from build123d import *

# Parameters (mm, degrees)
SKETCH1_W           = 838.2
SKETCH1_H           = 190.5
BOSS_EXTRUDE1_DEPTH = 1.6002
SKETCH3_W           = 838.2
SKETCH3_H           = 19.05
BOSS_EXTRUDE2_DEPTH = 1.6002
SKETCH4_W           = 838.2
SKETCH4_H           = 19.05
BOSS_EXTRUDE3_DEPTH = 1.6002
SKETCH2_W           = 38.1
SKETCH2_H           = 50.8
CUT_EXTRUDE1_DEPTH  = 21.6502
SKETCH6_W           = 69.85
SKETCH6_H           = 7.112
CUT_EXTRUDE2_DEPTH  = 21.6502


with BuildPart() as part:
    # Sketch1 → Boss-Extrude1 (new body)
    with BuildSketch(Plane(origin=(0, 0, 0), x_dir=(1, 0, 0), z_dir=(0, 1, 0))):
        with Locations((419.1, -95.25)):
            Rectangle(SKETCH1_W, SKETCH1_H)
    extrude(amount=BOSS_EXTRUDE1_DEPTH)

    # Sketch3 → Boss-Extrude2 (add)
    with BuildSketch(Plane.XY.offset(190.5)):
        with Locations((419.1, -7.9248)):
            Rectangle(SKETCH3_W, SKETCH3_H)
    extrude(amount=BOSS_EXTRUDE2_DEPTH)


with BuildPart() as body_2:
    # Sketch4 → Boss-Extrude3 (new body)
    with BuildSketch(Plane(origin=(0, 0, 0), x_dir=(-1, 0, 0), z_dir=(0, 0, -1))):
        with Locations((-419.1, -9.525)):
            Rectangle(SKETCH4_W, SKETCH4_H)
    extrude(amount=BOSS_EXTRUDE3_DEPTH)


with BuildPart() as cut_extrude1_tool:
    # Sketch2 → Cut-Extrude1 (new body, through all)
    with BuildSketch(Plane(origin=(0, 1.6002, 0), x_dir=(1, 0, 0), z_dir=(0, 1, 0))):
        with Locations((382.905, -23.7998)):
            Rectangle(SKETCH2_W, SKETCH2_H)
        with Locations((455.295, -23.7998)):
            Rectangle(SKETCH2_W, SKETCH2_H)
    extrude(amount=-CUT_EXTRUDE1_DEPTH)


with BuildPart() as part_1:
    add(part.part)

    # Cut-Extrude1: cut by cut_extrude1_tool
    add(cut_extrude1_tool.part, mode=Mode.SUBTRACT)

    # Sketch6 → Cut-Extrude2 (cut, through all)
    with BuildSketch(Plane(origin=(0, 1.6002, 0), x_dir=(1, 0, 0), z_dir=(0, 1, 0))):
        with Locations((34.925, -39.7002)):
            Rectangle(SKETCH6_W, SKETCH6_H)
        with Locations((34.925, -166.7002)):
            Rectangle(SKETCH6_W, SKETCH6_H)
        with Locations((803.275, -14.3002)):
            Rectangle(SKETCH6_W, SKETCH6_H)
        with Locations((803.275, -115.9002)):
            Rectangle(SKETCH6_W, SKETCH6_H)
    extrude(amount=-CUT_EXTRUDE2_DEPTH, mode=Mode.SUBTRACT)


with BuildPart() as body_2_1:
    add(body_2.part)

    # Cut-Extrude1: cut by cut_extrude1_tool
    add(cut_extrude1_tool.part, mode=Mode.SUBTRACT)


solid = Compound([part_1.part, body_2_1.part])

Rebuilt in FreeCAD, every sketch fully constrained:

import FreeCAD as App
import Part
import Sketcher
Q = App.Units.Quantity

doc = App.newDocument("Part")
body = doc.addObject("PartDesign::Body", "Body")

# Sketch on XZ plane
sketch1 = body.newObject("Sketcher::SketchObject", "Sketch")
sketch1.AttachmentSupport = (doc.getObject("XZ_Plane"), [""])
sketch1.MapMode = "FlatFace"
sketch1.addGeometry([
    Part.LineSegment(App.Vector(0, 0, 0), App.Vector(0, 190, 0)),
    Part.LineSegment(App.Vector(0, 190, 0), App.Vector(838, 190, 0)),
    Part.LineSegment(App.Vector(838, 190, 0), App.Vector(838, 0, 0)),
    Part.LineSegment(App.Vector(838, 0, 0), App.Vector(0, 0, 0)),
], False)
sketch1.addConstraint([
    Sketcher.Constraint("Coincident", 0, 2, 1, 1),
    Sketcher.Constraint("Coincident", 1, 2, 2, 1),
    Sketcher.Constraint("Coincident", 2, 2, 3, 1),
    Sketcher.Constraint("Coincident", 3, 2, 0, 1),
    Sketcher.Constraint("Vertical", 0),
    Sketcher.Constraint("Horizontal", 1),
    Sketcher.Constraint("Vertical", 2),
    Sketcher.Constraint("Horizontal", 3),
    Sketcher.Constraint("Coincident", 3, 2, -1, 1),
    Sketcher.Constraint("DistanceX", 1, 1, 1, 2, Q("33 in")),
    Sketcher.Constraint("DistanceY", 0, 1, 0, 2, Q("7.5 in")),
])
pad1 = body.newObject("PartDesign::Pad", "Pad")
pad1.Profile = sketch1
pad1.Length = Q("0.063 in")
pad1.Reversed = True

# Sketch on XY plane
sketch2 = body.newObject("Sketcher::SketchObject", "Sketch001")
sketch2.AttachmentSupport = (doc.getObject("XY_Plane"), [""])
sketch2.MapMode = "FlatFace"
sketch2.AttachmentOffset = App.Placement(App.Vector(0, 0, 7.5 * 25.4), App.Rotation())
sketch2.addGeometry([
    Part.LineSegment(App.Vector(0, 2, 0), App.Vector(0, -17, 0)),
    Part.LineSegment(App.Vector(0, -17, 0), App.Vector(838, -17, 0)),
    Part.LineSegment(App.Vector(838, -17, 0), App.Vector(838, 2, 0)),
    Part.LineSegment(App.Vector(838, 2, 0), App.Vector(0, 2, 0)),
], False)
sketch2.addConstraint([
    Sketcher.Constraint("Coincident", 0, 2, 1, 1),
    Sketcher.Constraint("Coincident", 1, 2, 2, 1),
    Sketcher.Constraint("Coincident", 2, 2, 3, 1),
    Sketcher.Constraint("Coincident", 3, 2, 0, 1),
    Sketcher.Constraint("Vertical", 0),
    Sketcher.Constraint("Horizontal", 1),
    Sketcher.Constraint("Vertical", 2),
    Sketcher.Constraint("Horizontal", 3),
    Sketcher.Constraint("PointOnObject", 0, 2, -2),
    Sketcher.Constraint("DistanceX", 1, 1, 1, 2, Q("33 in")),
    Sketcher.Constraint("DistanceY", 0, 2, 0, 1, Q("0.75 in")),
    Sketcher.Constraint("DistanceY", 0, 2, -1, 1, Q("0.687 in")),
])
pad2 = body.newObject("PartDesign::Pad", "Pad001")
pad2.Profile = sketch2
pad2.Length = Q("0.063 in")
body2 = doc.addObject("PartDesign::Body", "Body001")

# Sketch on XY plane
sketch3 = body2.newObject("Sketcher::SketchObject", "Sketch002")
sketch3.AttachmentSupport = (doc.getObject("XY_Plane001"), [""])
sketch3.MapMode = "FlatFace"
sketch3.addGeometry([
    Part.LineSegment(App.Vector(838, 0, 0), App.Vector(838, -19, 0)),
    Part.LineSegment(App.Vector(838, -19, 0), App.Vector(0, -19, 0)),
    Part.LineSegment(App.Vector(0, -19, 0), App.Vector(0, 0, 0)),
    Part.LineSegment(App.Vector(0, 0, 0), App.Vector(838, 0, 0)),
], False)
sketch3.addConstraint([
    Sketcher.Constraint("Coincident", 0, 2, 1, 1),
    Sketcher.Constraint("Coincident", 1, 2, 2, 1),
    Sketcher.Constraint("Coincident", 2, 2, 3, 1),
    Sketcher.Constraint("Coincident", 3, 2, 0, 1),
    Sketcher.Constraint("Vertical", 0),
    Sketcher.Constraint("Horizontal", 1),
    Sketcher.Constraint("Vertical", 2),
    Sketcher.Constraint("Horizontal", 3),
    Sketcher.Constraint("Coincident", 2, 2, -1, 1),
    Sketcher.Constraint("DistanceX", 1, 2, 1, 1, Q("33 in")),
    Sketcher.Constraint("DistanceY", 0, 2, 0, 1, Q("0.75 in")),
])
pad3 = body2.newObject("PartDesign::Pad", "Pad002")
pad3.Profile = sketch3
pad3.Length = Q("0.063 in")
pad3.Reversed = True
body3 = doc.addObject("PartDesign::Body", "Body002")
body3.AllowCompound = True

# Sketch on XZ plane
sketch4 = body3.newObject("Sketcher::SketchObject", "Sketch003")
sketch4.AttachmentSupport = (doc.getObject("XZ_Plane002"), [""])
sketch4.MapMode = "FlatFace"
sketch4.AttachmentOffset = App.Placement(App.Vector(0, 0, -0.063 * 25.4), App.Rotation())
sketch4.addGeometry([
    Part.LineSegment(App.Vector(364, -2, 0), App.Vector(364, 49, 0)),  # 0
    Part.LineSegment(App.Vector(364, 49, 0), App.Vector(402, 49, 0)),  # 1
    Part.LineSegment(App.Vector(402, 49, 0), App.Vector(402, -2, 0)),  # 2
    Part.LineSegment(App.Vector(402, -2, 0), App.Vector(364, -2, 0)),  # 3
    Part.LineSegment(App.Vector(436, -2, 0), App.Vector(436, 49, 0)),  # 4
    Part.LineSegment(App.Vector(436, 49, 0), App.Vector(474, 49, 0)),  # 5
    Part.LineSegment(App.Vector(474, 49, 0), App.Vector(474, -2, 0)),  # 6
    Part.LineSegment(App.Vector(474, -2, 0), App.Vector(436, -2, 0)),  # 7
], False)
sketch4.addConstraint([
    Sketcher.Constraint("Coincident", 0, 2, 1, 1),
    Sketcher.Constraint("Coincident", 1, 2, 2, 1),
    Sketcher.Constraint("Coincident", 2, 2, 3, 1),
    Sketcher.Constraint("Coincident", 3, 2, 0, 1),
    Sketcher.Constraint("Coincident", 4, 2, 5, 1),
    Sketcher.Constraint("Coincident", 5, 2, 6, 1),
    Sketcher.Constraint("Coincident", 6, 2, 7, 1),
    Sketcher.Constraint("Coincident", 7, 2, 4, 1),
    Sketcher.Constraint("Vertical", 0),
    Sketcher.Constraint("Horizontal", 1),
    Sketcher.Constraint("Vertical", 2),
    Sketcher.Constraint("Horizontal", 3),
    Sketcher.Constraint("Vertical", 4),
    Sketcher.Constraint("Horizontal", 5),
    Sketcher.Constraint("Vertical", 6),
    Sketcher.Constraint("Horizontal", 7),
    Sketcher.Constraint("Horizontal", 1, 2, 4, 2),
    Sketcher.Constraint("Horizontal", 3, 2, 6, 2),
    Sketcher.Constraint("Equal", 3, 5),
    Sketcher.Constraint("DistanceY", 0, 1, 0, 2, Q("2 in")),
    Sketcher.Constraint("DistanceX", 1, 1, 1, 2, Q("1.5 in")),
    Sketcher.Constraint("DistanceX", 1, 2, 4, 2, Q("1.35 in")),
    Sketcher.Constraint("DistanceX", -1, 1, 0, 2, Q("14.325 in")),
    Sketcher.Constraint("DistanceY", -1, 1, 0, 2, Q("1.937 in")),
])
pad4 = body3.newObject("PartDesign::Pad", "Pad003")
pad4.Profile = sketch4
pad4.Length = 21.6502
doc.recompute()

body4 = doc.addObject("PartDesign::Body", "Body003")
body4.BaseFeature = body3
boolean = body.newObject("PartDesign::Boolean", "Boolean")
boolean.Type = "Cut"
boolean.addObjects([body4])
doc.recompute()

# Sketch on XZ plane
sketch5 = body.newObject("Sketcher::SketchObject", "Sketch004")
sketch5.AttachmentSupport = (doc.getObject("XZ_Plane"), [""])
sketch5.MapMode = "FlatFace"
sketch5.AttachmentOffset = App.Placement(App.Vector(0, 0, -0.063 * 25.4), App.Rotation())
sketch5.addGeometry([
    Part.LineSegment(App.Vector(0, 36, 0), App.Vector(0, 43, 0)),  # 0
    Part.LineSegment(App.Vector(0, 43, 0), App.Vector(70, 43, 0)),  # 1
    Part.LineSegment(App.Vector(70, 43, 0), App.Vector(70, 36, 0)),  # 2
    Part.LineSegment(App.Vector(70, 36, 0), App.Vector(0, 36, 0)),  # 3
    Part.LineSegment(App.Vector(0, 163, 0), App.Vector(0, 170, 0)),  # 4
    Part.LineSegment(App.Vector(0, 170, 0), App.Vector(70, 170, 0)),  # 5
    Part.LineSegment(App.Vector(70, 170, 0), App.Vector(70, 163, 0)),  # 6
    Part.LineSegment(App.Vector(70, 163, 0), App.Vector(0, 163, 0)),  # 7
    Part.LineSegment(App.Vector(768, 11, 0), App.Vector(768, 18, 0)),  # 8
    Part.LineSegment(App.Vector(768, 18, 0), App.Vector(838, 18, 0)),  # 9
    Part.LineSegment(App.Vector(838, 18, 0), App.Vector(838, 11, 0)),  # 10
    Part.LineSegment(App.Vector(838, 11, 0), App.Vector(768, 11, 0)),  # 11
    Part.LineSegment(App.Vector(768, 112, 0), App.Vector(768, 119, 0)),  # 12
    Part.LineSegment(App.Vector(768, 119, 0), App.Vector(838, 119, 0)),  # 13
    Part.LineSegment(App.Vector(838, 119, 0), App.Vector(838, 112, 0)),  # 14
    Part.LineSegment(App.Vector(838, 112, 0), App.Vector(768, 112, 0)),  # 15
], False)
sketch5.addConstraint([
    Sketcher.Constraint("Coincident", 0, 2, 1, 1),
    Sketcher.Constraint("Coincident", 1, 2, 2, 1),
    Sketcher.Constraint("Coincident", 2, 2, 3, 1),
    Sketcher.Constraint("Coincident", 3, 2, 0, 1),
    Sketcher.Constraint("Coincident", 4, 2, 5, 1),
    Sketcher.Constraint("Coincident", 5, 2, 6, 1),
    Sketcher.Constraint("Coincident", 6, 2, 7, 1),
    Sketcher.Constraint("Coincident", 7, 2, 4, 1),
    Sketcher.Constraint("Coincident", 8, 2, 9, 1),
    Sketcher.Constraint("Coincident", 9, 2, 10, 1),
    Sketcher.Constraint("Coincident", 10, 2, 11, 1),
    Sketcher.Constraint("Coincident", 11, 2, 8, 1),
    Sketcher.Constraint("Coincident", 12, 2, 13, 1),
    Sketcher.Constraint("Coincident", 13, 2, 14, 1),
    Sketcher.Constraint("Coincident", 14, 2, 15, 1),
    Sketcher.Constraint("Coincident", 15, 2, 12, 1),
    Sketcher.Constraint("Vertical", 0),
    Sketcher.Constraint("Horizontal", 1),
    Sketcher.Constraint("Vertical", 2),
    Sketcher.Constraint("Horizontal", 3),
    Sketcher.Constraint("Vertical", 4),
    Sketcher.Constraint("Horizontal", 5),
    Sketcher.Constraint("Vertical", 6),
    Sketcher.Constraint("Horizontal", 7),
    Sketcher.Constraint("Vertical", 8),
    Sketcher.Constraint("Horizontal", 9),
    Sketcher.Constraint("Vertical", 10),
    Sketcher.Constraint("Horizontal", 11),
    Sketcher.Constraint("Vertical", 12),
    Sketcher.Constraint("Horizontal", 13),
    Sketcher.Constraint("Vertical", 14),
    Sketcher.Constraint("Horizontal", 15),
    Sketcher.Constraint("PointOnObject", 0, 2, -2),
    Sketcher.Constraint("PointOnObject", 4, 2, -2),
    Sketcher.Constraint("Vertical", 2, 2, 5, 2),
    Sketcher.Constraint("Vertical", 11, 2, 12, 2),
    Sketcher.Constraint("Vertical", 10, 2, 13, 2),
    Sketcher.Constraint("Equal", 7, 9),
    Sketcher.Constraint("Equal", 2, 4),
    Sketcher.Constraint("Equal", 6, 8),
    Sketcher.Constraint("Equal", 10, 12),
    Sketcher.Constraint("DistanceX", -1, 1, 9, 2, Q("33 in")),
    Sketcher.Constraint("DistanceY", 0, 2, 4, 2, Q("5 in")),
    Sketcher.Constraint("DistanceY", 8, 2, 1, 2, Q("1 in")),
    Sketcher.Constraint("DistanceY", 8, 2, 12, 2, Q("4 in")),
    Sketcher.Constraint("DistanceX", 1, 1, 1, 2, Q("2.75 in")),
    Sketcher.Constraint("DistanceY", 0, 1, 0, 2, Q("0.28 in")),
    Sketcher.Constraint("DistanceY", -1, 1, 0, 2, Q("1.703 in")),
])
pocket1 = body.newObject("PartDesign::Pocket", "Pocket")
pocket1.Profile = sketch5
pocket1.Type = "ThroughAll"
pocket1.Reversed = True
body2.AllowCompound = True
doc.recompute()

boolean2 = body2.newObject("PartDesign::Boolean", "Boolean001")
boolean2.Type = "Cut"
boolean2.addObjects([body3])

doc.recompute()
